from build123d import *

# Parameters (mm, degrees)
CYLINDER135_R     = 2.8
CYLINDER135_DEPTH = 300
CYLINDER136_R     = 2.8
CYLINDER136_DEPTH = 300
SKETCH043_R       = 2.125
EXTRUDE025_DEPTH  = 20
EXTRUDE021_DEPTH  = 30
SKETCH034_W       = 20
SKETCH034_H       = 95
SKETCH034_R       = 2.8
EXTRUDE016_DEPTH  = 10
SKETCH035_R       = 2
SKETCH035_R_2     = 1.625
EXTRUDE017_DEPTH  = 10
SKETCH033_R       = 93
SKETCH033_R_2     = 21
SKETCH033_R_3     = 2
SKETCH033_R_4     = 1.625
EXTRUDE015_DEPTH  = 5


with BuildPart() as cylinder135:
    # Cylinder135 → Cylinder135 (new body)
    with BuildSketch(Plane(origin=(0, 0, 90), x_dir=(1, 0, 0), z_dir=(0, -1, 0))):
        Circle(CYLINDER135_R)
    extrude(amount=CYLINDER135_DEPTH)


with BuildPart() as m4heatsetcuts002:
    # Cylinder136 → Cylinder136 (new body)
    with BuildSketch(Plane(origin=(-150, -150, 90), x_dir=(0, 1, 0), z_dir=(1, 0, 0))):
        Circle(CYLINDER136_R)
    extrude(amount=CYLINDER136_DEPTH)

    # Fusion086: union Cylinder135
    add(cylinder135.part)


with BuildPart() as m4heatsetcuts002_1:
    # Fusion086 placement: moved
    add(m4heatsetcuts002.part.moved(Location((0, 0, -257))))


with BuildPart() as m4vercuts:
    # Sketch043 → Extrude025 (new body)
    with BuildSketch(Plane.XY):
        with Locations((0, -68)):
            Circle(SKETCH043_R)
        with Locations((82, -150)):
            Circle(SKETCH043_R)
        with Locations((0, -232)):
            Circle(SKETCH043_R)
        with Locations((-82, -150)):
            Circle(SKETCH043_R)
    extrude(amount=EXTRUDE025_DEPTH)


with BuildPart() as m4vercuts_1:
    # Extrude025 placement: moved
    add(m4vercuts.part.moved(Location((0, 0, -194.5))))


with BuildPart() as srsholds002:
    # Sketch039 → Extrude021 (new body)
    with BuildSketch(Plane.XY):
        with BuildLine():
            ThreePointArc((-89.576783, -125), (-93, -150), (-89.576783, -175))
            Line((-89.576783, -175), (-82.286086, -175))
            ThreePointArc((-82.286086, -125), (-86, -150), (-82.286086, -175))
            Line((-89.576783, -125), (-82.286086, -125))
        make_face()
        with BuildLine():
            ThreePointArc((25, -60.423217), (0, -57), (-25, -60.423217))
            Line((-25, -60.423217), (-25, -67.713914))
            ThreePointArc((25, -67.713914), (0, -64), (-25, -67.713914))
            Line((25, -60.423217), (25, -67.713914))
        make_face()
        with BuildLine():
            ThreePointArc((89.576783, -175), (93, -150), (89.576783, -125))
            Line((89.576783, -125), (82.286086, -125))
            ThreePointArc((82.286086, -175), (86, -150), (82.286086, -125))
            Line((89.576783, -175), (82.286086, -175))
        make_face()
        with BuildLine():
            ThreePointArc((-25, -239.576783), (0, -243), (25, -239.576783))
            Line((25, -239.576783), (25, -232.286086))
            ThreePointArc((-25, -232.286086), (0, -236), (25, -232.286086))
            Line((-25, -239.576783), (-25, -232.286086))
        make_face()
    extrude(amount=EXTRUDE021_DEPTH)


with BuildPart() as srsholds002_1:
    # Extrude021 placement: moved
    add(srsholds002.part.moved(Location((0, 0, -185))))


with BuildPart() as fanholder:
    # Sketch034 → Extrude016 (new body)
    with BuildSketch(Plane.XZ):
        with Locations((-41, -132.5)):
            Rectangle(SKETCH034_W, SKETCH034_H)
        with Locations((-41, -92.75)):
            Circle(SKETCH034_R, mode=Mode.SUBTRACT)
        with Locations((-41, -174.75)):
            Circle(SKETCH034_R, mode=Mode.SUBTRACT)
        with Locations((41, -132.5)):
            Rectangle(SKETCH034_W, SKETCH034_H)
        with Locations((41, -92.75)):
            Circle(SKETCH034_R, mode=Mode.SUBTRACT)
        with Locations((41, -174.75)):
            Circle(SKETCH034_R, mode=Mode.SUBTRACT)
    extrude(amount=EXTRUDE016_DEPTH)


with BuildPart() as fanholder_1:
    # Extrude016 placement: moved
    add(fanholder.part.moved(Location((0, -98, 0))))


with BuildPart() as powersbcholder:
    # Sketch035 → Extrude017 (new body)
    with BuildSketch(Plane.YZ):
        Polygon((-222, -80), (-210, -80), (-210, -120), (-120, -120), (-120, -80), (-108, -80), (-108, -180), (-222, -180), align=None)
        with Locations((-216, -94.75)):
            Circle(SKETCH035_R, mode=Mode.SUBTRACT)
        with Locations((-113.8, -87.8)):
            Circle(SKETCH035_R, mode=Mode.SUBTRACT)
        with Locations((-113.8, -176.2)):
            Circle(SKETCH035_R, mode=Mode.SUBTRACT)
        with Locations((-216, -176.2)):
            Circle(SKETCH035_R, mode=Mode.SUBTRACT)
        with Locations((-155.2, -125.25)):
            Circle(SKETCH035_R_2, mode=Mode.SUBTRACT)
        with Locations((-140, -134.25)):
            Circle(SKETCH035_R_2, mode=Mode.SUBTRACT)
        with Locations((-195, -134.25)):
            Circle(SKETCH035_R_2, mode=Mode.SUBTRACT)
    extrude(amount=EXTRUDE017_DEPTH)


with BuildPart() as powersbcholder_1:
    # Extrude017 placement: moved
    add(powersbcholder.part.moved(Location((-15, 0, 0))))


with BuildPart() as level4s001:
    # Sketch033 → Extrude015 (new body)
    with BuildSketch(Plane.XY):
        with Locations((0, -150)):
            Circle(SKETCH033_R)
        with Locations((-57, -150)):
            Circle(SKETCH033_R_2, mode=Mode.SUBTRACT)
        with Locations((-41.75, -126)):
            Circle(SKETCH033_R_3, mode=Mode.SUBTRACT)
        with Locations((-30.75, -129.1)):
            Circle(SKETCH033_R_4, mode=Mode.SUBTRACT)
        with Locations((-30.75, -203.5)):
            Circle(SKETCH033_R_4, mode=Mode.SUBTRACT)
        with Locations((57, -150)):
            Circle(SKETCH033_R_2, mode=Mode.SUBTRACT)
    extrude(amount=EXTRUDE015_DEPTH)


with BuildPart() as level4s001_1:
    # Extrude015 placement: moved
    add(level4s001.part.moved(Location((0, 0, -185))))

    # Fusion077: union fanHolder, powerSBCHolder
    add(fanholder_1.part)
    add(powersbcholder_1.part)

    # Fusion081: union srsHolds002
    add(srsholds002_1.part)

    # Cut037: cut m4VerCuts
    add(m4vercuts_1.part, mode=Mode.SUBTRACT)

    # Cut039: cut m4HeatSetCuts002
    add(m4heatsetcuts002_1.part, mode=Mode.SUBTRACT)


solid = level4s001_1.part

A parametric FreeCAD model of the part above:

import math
import FreeCAD as App
import Part
import Sketcher

V = App.Vector

doc = App.newDocument("Part")
params = doc.addObject("Spreadsheet::Sheet", "Params")
for row, (alias, value) in enumerate([
    ("sketch1_diameter", "5.6 mm"),
    ("pad1_length", "300 mm"),
    ("sketch2_diameter", "5.6 mm"),
    ("pad2_length", "300 mm"),
    ("sketch3_diameter", "4.25 mm"),
    ("pad3_length", "20 mm"),
    ("pad4_length", "30 mm"),
    ("sketch5_diameter", "5.6 mm"),
    ("sketch5_width", "20 mm"),
    ("sketch5_height", "95 mm"),
    ("pad5_length", "10 mm"),
    ("sketch6_diameter", "4 mm"),
    ("sketch6_diameter2", "3.25 mm"),
    ("sketch6_width", "12 mm"),
    ("sketch6_width2", "114 mm"),
    ("sketch6_height", "100 mm"),
    ("pad6_length", "10 mm"),
    ("sketch7_diameter", "186 mm"),
    ("sketch7_diameter2", "42 mm"),
    ("sketch7_diameter3", "4 mm"),
    ("sketch7_diameter4", "3.25 mm"),
    ("pad7_length", "5 mm"),
], start=1):
    params.set(f"A{row}", alias)
    params.set(f"B{row}", "=" + value)
    params.setAlias(f"B{row}", alias)

body = doc.addObject("PartDesign::Body", "Body")

# Sketch on XZ plane
sketch1 = body.newObject("Sketcher::SketchObject", "Sketch")
sketch1.AttachmentSupport = (doc.getObject("XZ_Plane"), [""])
sketch1.MapMode = "FlatFace"
sketch1.addGeometry(Part.Circle(V(0, 90, 0), V(0, 0, 1), 2.8), False)
sketch1.addConstraint(Sketcher.Constraint("PointOnObject", 0, 3, -2))
sketch1.addConstraint(Sketcher.Constraint("Diameter", 0, 5.6))
sketch1.addConstraint(Sketcher.Constraint("DistanceY", -1, 1, 0, 3, 90.0))
sketch1.setExpression("Constraints[1]", "Params.sketch1_diameter")
pad1 = body.newObject("PartDesign::Pad", "Pad")
pad1.Profile = sketch1
pad1.setExpression("Length", "Params.pad1_length")
body2 = doc.addObject("PartDesign::Body", "Body001")

# Sketch on YZ plane
sketch2 = body2.newObject("Sketcher::SketchObject", "Sketch001")
sketch2.AttachmentSupport = (doc.getObject("YZ_Plane001"), [""])
sketch2.MapMode = "FlatFace"
sketch2.AttachmentOffset = App.Placement(V(0, 0, -150), App.Rotation())
sketch2.addGeometry(Part.Circle(V(-150, 90, 0), V(0, 0, 1), 2.8), False)
sketch2.addConstraint(Sketcher.Constraint("Diameter", 0, 5.6))
sketch2.addConstraint(Sketcher.Constraint("DistanceX", 0, 3, -1, 1, 150.0))
sketch2.addConstraint(Sketcher.Constraint("DistanceY", -1, 1, 0, 3, 90.0))
sketch2.setExpression("Constraints[0]", "Params.sketch2_diameter")
pad2 = body2.newObject("PartDesign::Pad", "Pad001")
pad2.Profile = sketch2
pad2.setExpression("Length", "Params.pad2_length")
doc.recompute()

boolean = body2.newObject("PartDesign::Boolean", "Boolean")
boolean.Type = "Fuse"
boolean.addObjects([body])
body3 = doc.addObject("PartDesign::Body", "Body002")
doc.recompute()

body2.Placement = App.Placement(V(0, 0, -257), App.Rotation(V(0, 0, 1), 0))
boolean2 = body3.newObject("PartDesign::Boolean", "Boolean001")
boolean2.Type = "Fuse"
boolean2.addObjects([body2])
body4 = doc.addObject("PartDesign::Body", "Body003")
body4.AllowCompound = True

# Sketch on XY plane
sketch3 = body4.newObject("Sketcher::SketchObject", "Sketch002")
sketch3.AttachmentSupport = (doc.getObject("XY_Plane003"), [""])
sketch3.MapMode = "FlatFace"
sketch3.addGeometry(Part.Circle(V(0, -68, 0), V(0, 0, 1), 2.125), False)
sketch3.addGeometry(Part.Circle(V(82, -150, 0), V(0, 0, 1), 2.125), False)
sketch3.addGeometry(Part.Circle(V(0, -232, 0), V(0, 0, 1), 2.125), False)
sketch3.addGeometry(Part.Circle(V(-82, -150, 0), V(0, 0, 1), 2.125), False)
sketch3.addConstraint(Sketcher.Constraint("Equal", 0, 1))
sketch3.addConstraint(Sketcher.Constraint("Equal", 1, 2))
sketch3.addConstraint(Sketcher.Constraint("Equal", 2, 3))
sketch3.addConstraint(Sketcher.Constraint("Symmetric", 1, 3, 3, 3, -2))
sketch3.addConstraint(Sketcher.Constraint("PointOnObject", 0, 3, -2))
sketch3.addConstraint(Sketcher.Constraint("PointOnObject", 2, 3, -2))
sketch3.addConstraint(Sketcher.Constraint("Diameter", 0, 4.25))
sketch3.addConstraint(Sketcher.Constraint("DistanceY", 0, 3, -1, 1, 68.0))
sketch3.addConstraint(Sketcher.Constraint("DistanceX", -1, 1, 1, 3, 82.0))
sketch3.addConstraint(Sketcher.Constraint("DistanceY", 1, 3, -1, 1, 150.0))
sketch3.addConstraint(Sketcher.Constraint("DistanceY", 2, 3, -1, 1, 232.0))
sketch3.setExpression("Constraints[6]", "Params.sketch3_diameter")
pad3 = body4.newObject("PartDesign::Pad", "Pad002")
pad3.Profile = sketch3
pad3.setExpression("Length", "Params.pad3_length")
body5 = doc.addObject("PartDesign::Body", "Body004")
body5.AllowCompound = True
doc.recompute()

body4.Placement = App.Placement(V(0, 0, -194.5), App.Rotation(V(0, 0, 1), 0))
boolean3 = body5.newObject("PartDesign::Boolean", "Boolean002")
boolean3.Type = "Fuse"
boolean3.addObjects([body4])
body6 = doc.addObject("PartDesign::Body", "Body005")
body6.AllowCompound = True

# Sketch on XY plane
sketch4 = body6.newObject("Sketcher::SketchObject", "Sketch003")
sketch4.AttachmentSupport = (doc.getObject("XY_Plane005"), [""])
sketch4.MapMode = "FlatFace"
sketch4.addGeometry(Part.ArcOfCircle(Part.Circle(V(0.000008, -150, 0), V(0, 0, 1), 93.000008), math.radians(164.406106), math.radians(195.593894)), False)
sketch4.addGeometry(Part.LineSegment(V(-89.576783, -175, 0), V(-82.286086, -175, 0)), False)
sketch4.addGeometry(Part.ArcOfCircle(Part.Circle(V(-0.000007, -150, 0), V(0, 0, 1), 85.999993), math.radians(163.100269), math.radians(196.899731)), False)
sketch4.addGeometry(Part.LineSegment(V(-82.286086, -125, 0), V(-89.576783, -125, 0)), False)
sketch4.addGeometry(Part.ArcOfCircle(Part.Circle(V(0, -150.000008, 0), V(0, 0, 1), 93.000008), math.radians(74.406106), math.radians(105.593894)), False)
sketch4.addGeometry(Part.LineSegment(V(-25, -60.423217, 0), V(-25, -67.713914, 0)), False)
sketch4.addGeometry(Part.ArcOfCircle(Part.Circle(V(0, -149.999993, 0), V(0, 0, 1), 85.999993), math.radians(73.100269), math.radians(106.899731)), False)
sketch4.addGeometry(Part.LineSegment(V(25, -67.713914, 0), V(25, -60.423217, 0)), False)
sketch4.addGeometry(Part.ArcOfCircle(Part.Circle(V(-0.000008, -150, 0), V(0, 0, 1), 93.000008), math.radians(-15.593894), math.radians(15.593894)), False)
sketch4.addGeometry(Part.LineSegment(V(89.576783, -125, 0), V(82.286086, -125, 0)), False)
sketch4.addGeometry(Part.ArcOfCircle(Part.Circle(V(0.000007, -150, 0), V(0, 0, 1), 85.999993), math.radians(-16.899731), math.radians(16.899731)), False)
sketch4.addGeometry(Part.LineSegment(V(82.286086, -175, 0), V(89.576783, -175, 0)), False)
sketch4.addGeometry(Part.ArcOfCircle(Part.Circle(V(0, -149.999992, 0), V(0, 0, 1), 93.000008), math.radians(-105.593894), math.radians(-74.406106)), False)
sketch4.addGeometry(Part.LineSegment(V(25, -239.576783, 0), V(25, -232.286086, 0)), False)
sketch4.addGeometry(Part.ArcOfCircle(Part.Circle(V(0, -150.000007, 0), V(0, 0, 1), 85.999993), math.radians(-106.899731), math.radians(-73.100269)), False)
sketch4.addGeometry(Part.LineSegment(V(-25, -232.286086, 0), V(-25, -239.576783, 0)), False)
sketch4.addConstraint(Sketcher.Constraint("Coincident", 0, 2, 1, 1))
sketch4.addConstraint(Sketcher.Constraint("Coincident", 1, 2, 2, 2))
sketch4.addConstraint(Sketcher.Constraint("Coincident", 2, 1, 3, 1))
sketch4.addConstraint(Sketcher.Constraint("Coincident", 3, 2, 0, 1))
sketch4.addConstraint(Sketcher.Constraint("Coincident", 4, 2, 5, 1))
sketch4.addConstraint(Sketcher.Constraint("Coincident", 5, 2, 6, 2))
sketch4.addConstraint(Sketcher.Constraint("Coincident", 6, 1, 7, 1))
sketch4.addConstraint(Sketcher.Constraint("Coincident", 7, 2, 4, 1))
sketch4.addConstraint(Sketcher.Constraint("Coincident", 8, 2, 9, 1))
sketch4.addConstraint(Sketcher.Constraint("Coincident", 9, 2, 10, 2))
sketch4.addConstraint(Sketcher.Constraint("Coincident", 10, 1, 11, 1))
sketch4.addConstraint(Sketcher.Constraint("Coincident", 11, 2, 8, 1))
sketch4.addConstraint(Sketcher.Constraint("Coincident", 12, 2, 13, 1))
sketch4.addConstraint(Sketcher.Constraint("Coincident", 13, 2, 14, 2))
sketch4.addConstraint(Sketcher.Constraint("Coincident", 14, 1, 15, 1))
sketch4.addConstraint(Sketcher.Constraint("Coincident", 15, 2, 12, 1))
sketch4.addConstraint(Sketcher.Constraint("Horizontal", 1))
sketch4.addConstraint(Sketcher.Constraint("Horizontal", 3))
sketch4.addConstraint(Sketcher.Constraint("Vertical", 5))
sketch4.addConstraint(Sketcher.Constraint("Vertical", 7))
sketch4.addConstraint(Sketcher.Constraint("Horizontal", 9))
sketch4.addConstraint(Sketcher.Constraint("Horizontal", 11))
sketch4.addConstraint(Sketcher.Constraint("Vertical", 13))
sketch4.addConstraint(Sketcher.Constraint("Vertical", 15))
sketch4.addConstraint(Sketcher.Constraint("Coincident", 6, 3, 2, 3))
sketch4.addConstraint(Sketcher.Constraint("Coincident", 8, 3, 2, 3))
sketch4.addConstraint(Sketcher.Constraint("Coincident", 10, 3, 0, 3))
sketch4.addConstraint(Sketcher.Constraint("Coincident", 12, 3, 6, 3))
sketch4.addConstraint(Sketcher.Constraint("Coincident", 14, 3, 2, 3))
sketch4.addConstraint(Sketcher.Constraint("PointOnObject", 4, 3, -2))
sketch4.addConstraint(Sketcher.Constraint("PointOnObject", 6, 3, -2))
sketch4.addConstraint(Sketcher.Constraint("DistanceY", 0, 3, -1, 1, 150.0))
sketch4.addConstraint(Sketcher.Constraint("DistanceY", 2, 3, -1, 1, 150.0))
sketch4.addConstraint(Sketcher.Constraint("DistanceY", 0, 2, -1, 1, 175.0))
sketch4.addConstraint(Sketcher.Constraint("DistanceY", 2, 1, -1, 1, 125.0))
sketch4.addConstraint(Sketcher.Constraint("DistanceX", 4, 2, -1, 1, 25.0))
sketch4.addConstraint(Sketcher.Constraint("DistanceX", -1, 1, 6, 1, 25.0))
sketch4.addConstraint(Sketcher.Constraint("DistanceY", 8, 2, -1, 1, 125.0))
sketch4.addConstraint(Sketcher.Constraint("DistanceY", 10, 1, -1, 1, 175.0))
sketch4.addConstraint(Sketcher.Constraint("DistanceX", -1, 1, 12, 2, 25.0))
sketch4.addConstraint(Sketcher.Constraint("DistanceX", 14, 1, -1, 1, 25.0))
sketch4.addConstraint(Sketcher.Constraint("Radius", 0, 93.000008))
sketch4.addConstraint(Sketcher.Constraint("Radius", 2, 85.999993))
sketch4.addConstraint(Sketcher.Constraint("Radius", 4, 93.000008))
sketch4.addConstraint(Sketcher.Constraint("Radius", 6, 85.999993))
sketch4.addConstraint(Sketcher.Constraint("Radius", 8, 93.000008))
sketch4.addConstraint(Sketcher.Constraint("Radius", 10, 85.999993))
sketch4.addConstraint(Sketcher.Constraint("Radius", 12, 93.000008))
sketch4.addConstraint(Sketcher.Constraint("Radius", 14, 85.999993))
sketch4.addConstraint(Sketcher.Constraint("DistanceX", 1, 1, 1, 2, 7.290697))
sketch4.addConstraint(Sketcher.Constraint("DistanceY", 5, 2, 5, 1, 7.290697))
pad4 = body6.newObject("PartDesign::Pad", "Pad003")
pad4.Profile = sketch4
pad4.setExpression("Length", "Params.pad4_length")
body7 = doc.addObject("PartDesign::Body", "Body006")
body7.AllowCompound = True
doc.recompute()

body6.Placement = App.Placement(V(0, 0, -185), App.Rotation(V(0, 0, 1), 0))
boolean4 = body7.newObject("PartDesign::Boolean", "Boolean003")
boolean4.Type = "Fuse"
boolean4.addObjects([body6])
body8 = doc.addObject("PartDesign::Body", "Body007")
body8.AllowCompound = True

# Sketch on XZ plane
sketch5 = body8.newObject("Sketcher::SketchObject", "Sketch004")
sketch5.AttachmentSupport = (doc.getObject("XZ_Plane007"), [""])
sketch5.MapMode = "FlatFace"
sketch5.addGeometry(Part.LineSegment(V(-51, -85, 0), V(-51, -180, 0)), False)
sketch5.addGeometry(Part.LineSegment(V(-51, -180, 0), V(-31, -180, 0)), False)
sketch5.addGeometry(Part.LineSegment(V(-31, -180, 0), V(-31, -85, 0)), False)
sketch5.addGeometry(Part.LineSegment(V(-31, -85, 0), V(-51, -85, 0)), False)
sketch5.addGeometry(Part.Circle(V(-41, -174.75, 0), V(0, 0, 1), 2.8), False)
sketch5.addGeometry(Part.Circle(V(-41, -92.75, 0), V(0, 0, 1), 2.8), False)
sketch5.addGeometry(Part.LineSegment(V(31, -85, 0), V(31, -180, 0)), False)
sketch5.addGeometry(Part.LineSegment(V(31, -180, 0), V(51, -180, 0)), False)
sketch5.addGeometry(Part.LineSegment(V(51, -180, 0), V(51, -85, 0)), False)
sketch5.addGeometry(Part.LineSegment(V(51, -85, 0), V(31, -85, 0)), False)
sketch5.addGeometry(Part.Circle(V(41, -174.75, 0), V(0, 0, 1), 2.8), False)
sketch5.addGeometry(Part.Circle(V(41, -92.75, 0), V(0, 0, 1), 2.8), False)
sketch5.addConstraint(Sketcher.Constraint("Coincident", 0, 2, 1, 1))
sketch5.addConstraint(Sketcher.Constraint("Coincident", 1, 2, 2, 1))
sketch5.addConstraint(Sketcher.Constraint("Coincident", 2, 2, 3, 1))
sketch5.addConstraint(Sketcher.Constraint("Coincident", 3, 2, 0, 1))
sketch5.addConstraint(Sketcher.Constraint("Coincident", 6, 2, 7, 1))
sketch5.addConstraint(Sketcher.Constraint("Coincident", 7, 2, 8, 1))
sketch5.addConstraint(Sketcher.Constraint("Coincident", 8, 2, 9, 1))
sketch5.addConstraint(Sketcher.Constraint("Coincident", 9, 2, 6, 1))
sketch5.addConstraint(Sketcher.Constraint("Vertical", 0))
sketch5.addConstraint(Sketcher.Constraint("Horizontal", 1))
sketch5.addConstraint(Sketcher.Constraint("Vertical", 2))
sketch5.addConstraint(Sketcher.Constraint("Horizontal", 3))
sketch5.addConstraint(Sketcher.Constraint("Vertical", 6))
sketch5.addConstraint(Sketcher.Constraint("Horizontal", 7))
sketch5.addConstraint(Sketcher.Constraint("Vertical", 8))
sketch5.addConstraint(Sketcher.Constraint("Horizontal", 9))
sketch5.addConstraint(Sketcher.Constraint("Equal", 4, 5))
sketch5.addConstraint(Sketcher.Constraint("Equal", 5, 10))
sketch5.addConstraint(Sketcher.Constraint("Equal", 10, 11))
sketch5.addConstraint(Sketcher.Constraint("Symmetric", 4, 3, 10, 3, -2))
sketch5.addConstraint(Sketcher.Constraint("Symmetric", 5, 3, 11, 3, -2))
sketch5.addConstraint(Sketcher.Constraint("Symmetric", 1, 2, 6, 2, -2))
sketch5.addConstraint(Sketcher.Constraint("Symmetric", 3, 2, 8, 2, -2))
sketch5.addConstraint(Sketcher.Constraint("Vertical", 4, 3, 5, 3))
sketch5.addConstraint(Sketcher.Constraint("Diameter", 4, 5.6))
sketch5.addConstraint(Sketcher.Constraint("DistanceX", 1, 1, 1, 2, 20.0))
sketch5.addConstraint(Sketcher.Constraint("DistanceY", 0, 2, 0, 1, 95.0))
sketch5.addConstraint(Sketcher.Constraint("DistanceX", 4, 3, -1, 1, 41.0))
sketch5.addConstraint(Sketcher.Constraint("DistanceX", 0, 2, -1, 1, 51.0))
sketch5.addConstraint(Sketcher.Constraint("DistanceY", 0, 2, -1, 1, 180.0))
sketch5.addConstraint(Sketcher.Constraint("DistanceY", 4, 3, 5, 3, 82.0))
sketch5.addConstraint(Sketcher.Constraint("DistanceY", 4, 3, -1, 1, 174.75))
sketch5.setExpression("Constraints[24]", "Params.sketch5_diameter")
sketch5.setExpression("Constraints[25]", "Params.sketch5_width")
sketch5.setExpression("Constraints[26]", "Params.sketch5_height")
pad5 = body8.newObject("PartDesign::Pad", "Pad004")
pad5.Profile = sketch5
pad5.setExpression("Length", "Params.pad5_length")
body9 = doc.addObject("PartDesign::Body", "Body008")
body9.AllowCompound = True
doc.recompute()

body8.Placement = App.Placement(V(0, -98, 0), App.Rotation(V(0, 0, 1), 0))
boolean5 = body9.newObject("PartDesign::Boolean", "Boolean004")
boolean5.Type = "Fuse"
boolean5.addObjects([body8])
body10 = doc.addObject("PartDesign::Body", "Body009")

# Sketch on YZ plane
sketch6 = body10.newObject("Sketcher::SketchObject", "Sketch005")
sketch6.AttachmentSupport = (doc.getObject("YZ_Plane009"), [""])
sketch6.MapMode = "FlatFace"
sketch6.addGeometry(Part.LineSegment(V(-210, -80, 0), V(-222, -80, 0)), False)
sketch6.addGeometry(Part.LineSegment(V(-222, -80, 0), V(-222, -180, 0)), False)
sketch6.addGeometry(Part.LineSegment(V(-222, -180, 0), V(-108, -180, 0)), False)
sketch6.addGeometry(Part.LineSegment(V(-108, -180, 0), V(-108, -80, 0)), False)
sketch6.addGeometry(Part.LineSegment(V(-108, -80, 0), V(-120, -80, 0)), False)
sketch6.addGeometry(Part.LineSegment(V(-120, -80, 0), V(-120, -120, 0)), False)
sketch6.addGeometry(Part.LineSegment(V(-120, -120, 0), V(-210, -120, 0)), False)
sketch6.addGeometry(Part.LineSegment(V(-210, -120, 0), V(-210, -80, 0)), False)
sketch6.addGeometry(Part.Circle(V(-113.8, -176.2, 0), V(0, 0, 1), 2), False)
sketch6.addGeometry(Part.Circle(V(-140, -134.25, 0), V(0, 0, 1), 1.625), False)
sketch6.addGeometry(Part.Circle(V(-216, -176.2, 0), V(0, 0, 1), 2), False)
sketch6.addGeometry(Part.Circle(V(-195, -134.25, 0), V(0, 0, 1), 1.625), False)
sketch6.addGeometry(Part.Circle(V(-155.2, -125.25, 0), V(0, 0, 1), 1.625), False)
sketch6.addGeometry(Part.Circle(V(-113.8, -87.8, 0), V(0, 0, 1), 2), False)
sketch6.addGeometry(Part.Circle(V(-216, -94.75, 0), V(0, 0, 1), 2), False)
sketch6.addConstraint(Sketcher.Constraint("Coincident", 0, 2, 1, 1))
sketch6.addConstraint(Sketcher.Constraint("Coincident", 1, 2, 2, 1))
sketch6.addConstraint(Sketcher.Constraint("Coincident", 2, 2, 3, 1))
sketch6.addConstraint(Sketcher.Constraint("Coincident", 3, 2, 4, 1))
sketch6.addConstraint(Sketcher.Constraint("Coincident", 4, 2, 5, 1))
sketch6.addConstraint(Sketcher.Constraint("Coincident", 5, 2, 6, 1))
sketch6.addConstraint(Sketcher.Constraint("Coincident", 6, 2, 7, 1))
sketch6.addConstraint(Sketcher.Constraint("Coincident", 7, 2, 0, 1))
sketch6.addConstraint(Sketcher.Constraint("Horizontal", 0))
sketch6.addConstraint(Sketcher.Constraint("Vertical", 1))
sketch6.addConstraint(Sketcher.Constraint("Horizontal", 2))
sketch6.addConstraint(Sketcher.Constraint("Vertical", 3))
sketch6.addConstraint(Sketcher.Constraint("Horizontal", 4))
sketch6.addConstraint(Sketcher.Constraint("Vertical", 5))
sketch6.addConstraint(Sketcher.Constraint("Horizontal", 6))
sketch6.addConstraint(Sketcher.Constraint("Vertical", 7))
sketch6.addConstraint(Sketcher.Constraint("Equal", 8, 10))
sketch6.addConstraint(Sketcher.Constraint("Equal", 9, 11))
sketch6.addConstraint(Sketcher.Constraint("Equal", 11, 12))
sketch6.addConstraint(Sketcher.Constraint("Equal", 10, 13))
sketch6.addConstraint(Sketcher.Constraint("Equal", 13, 14))
sketch6.addConstraint(Sketcher.Constraint("Horizontal", 8, 3, 10, 3))
sketch6.addConstraint(Sketcher.Constraint("Horizontal", 9, 3, 11, 3))
sketch6.addConstraint(Sketcher.Constraint("Horizontal", 0, 2, 3, 2))
sketch6.addConstraint(Sketcher.Constraint("Vertical", 8, 3, 13, 3))
sketch6.addConstraint(Sketcher.Constraint("Vertical", 10, 3, 14, 3))
sketch6.addConstraint(Sketcher.Constraint("Equal", 0, 4))
sketch6.addConstraint(Sketcher.Constraint("Diameter", 8, 4.0))
sketch6.addConstraint(Sketcher.Constraint("Diameter", 9, 3.25))
sketch6.addConstraint(Sketcher.Constraint("DistanceX", 0, 2, 0, 1, 12.0))
sketch6.addConstraint(Sketcher.Constraint("DistanceX", 2, 1, 2, 2, 114.0))
sketch6.addConstraint(Sketcher.Constraint("DistanceY", 1, 2, 1, 1, 100.0))
sketch6.addConstraint(Sketcher.Constraint("DistanceY", 5, 2, 5, 1, 40.0))
sketch6.addConstraint(Sketcher.Constraint("DistanceX", 9, 3, -1, 1, 140.0))
sketch6.addConstraint(Sketcher.Constraint("DistanceX", 10, 3, -1, 1, 216.0))
sketch6.addConstraint(Sketcher.Constraint("DistanceX", 11, 3, -1, 1, 195.0))
sketch6.addConstraint(Sketcher.Constraint("DistanceX", 0, 2, -1, 1, 222.0))
sketch6.addConstraint(Sketcher.Constraint("DistanceY", 0, 2, -1, 1, 80.0))
sketch6.addConstraint(Sketcher.Constraint("DistanceY", 9, 3, 12, 3, 9.0))
sketch6.addConstraint(Sketcher.Constraint("DistanceX", 8, 3, -1, 1, 113.8))
sketch6.addConstraint(Sketcher.Constraint("DistanceY", 8, 3, -1, 1, 176.2))
sketch6.addConstraint(Sketcher.Constraint("DistanceX", 12, 3, -1, 1, 155.2))
sketch6.addConstraint(Sketcher.Constraint("DistanceY", 13, 3, -1, 1, 87.8))
sketch6.addConstraint(Sketcher.Constraint("DistanceY", 11, 3, 14, 3, 39.5))
sketch6.addConstraint(Sketcher.Constraint("DistanceY", 9, 3, -1, 1, 134.25))
sketch6.setExpression("Constraints[27]", "Params.sketch6_diameter")
sketch6.setExpression("Constraints[28]", "Params.sketch6_diameter2")
sketch6.setExpression("Constraints[29]", "Params.sketch6_width")
sketch6.setExpression("Constraints[30]", "Params.sketch6_width2")
sketch6.setExpression("Constraints[31]", "Params.sketch6_height")
pad6 = body10.newObject("PartDesign::Pad", "Pad005")
pad6.Profile = sketch6
pad6.setExpression("Length", "Params.pad6_length")
body11 = doc.addObject("PartDesign::Body", "Body010")
doc.recompute()

body10.Placement = App.Placement(V(-15, 0, 0), App.Rotation(V(0, 0, 1), 0))
boolean6 = body11.newObject("PartDesign::Boolean", "Boolean005")
boolean6.Type = "Fuse"
boolean6.addObjects([body10])
body12 = doc.addObject("PartDesign::Body", "Body011")

# Sketch on XY plane
sketch7 = body12.newObject("Sketcher::SketchObject", "Sketch006")
sketch7.AttachmentSupport = (doc.getObject("XY_Plane011"), [""])
sketch7.MapMode = "FlatFace"
sketch7.addGeometry(Part.Circle(V(0, -150, 0), V(0, 0, 1), 93), False)
sketch7.addGeometry(Part.Circle(V(-30.75, -203.5, 0), V(0, 0, 1), 1.625), False)
sketch7.addGeometry(Part.Circle(V(-57, -150, 0), V(0, 0, 1), 21), False)
sketch7.addGeometry(Part.Circle(V(-41.75, -126, 0), V(0, 0, 1), 2), False)
sketch7.addGeometry(Part.Circle(V(-30.75, -129.1, 0), V(0, 0, 1), 1.625), False)
sketch7.addGeometry(Part.Circle(V(57, -150, 0), V(0, 0, 1), 21), False)
sketch7.addConstraint(Sketcher.Constraint("Equal", 1, 4))
sketch7.addConstraint(Sketcher.Constraint("Equal", 2, 5))
sketch7.addConstraint(Sketcher.Constraint("Symmetric", 2, 3, 5, 3, -2))
sketch7.addConstraint(Sketcher.Constraint("PointOnObject", 0, 3, -2))
sketch7.addConstraint(Sketcher.Constraint("Horizontal", 0, 3, 2, 3))
sketch7.addConstraint(Sketcher.Constraint("Vertical", 1, 3, 4, 3))
sketch7.addConstraint(Sketcher.Constraint("Diameter", 0, 186.0))
sketch7.addConstraint(Sketcher.Constraint("Diameter", 2, 42.0))
sketch7.addConstraint(Sketcher.Constraint("Diameter", 3, 4.0))
sketch7.addConstraint(Sketcher.Constraint("Diameter", 1, 3.25))
sketch7.addConstraint(Sketcher.Constraint("DistanceY", 0, 3, -1, 1, 150.0))
sketch7.addConstraint(Sketcher.Constraint("DistanceX", 2, 3, -1, 1, 57.0))
sketch7.addConstraint(Sketcher.Constraint("DistanceY", 3, 3, -1, 1, 126.0))
sketch7.addConstraint(Sketcher.Constraint("DistanceX", 3, 3, 1, 3, 11.0))
sketch7.addConstraint(Sketcher.Constraint("DistanceY", 1, 3, -1, 1, 203.5))
sketch7.addConstraint(Sketcher.Constraint("DistanceY", 4, 3, -1, 1, 129.1))
sketch7.addConstraint(Sketcher.Constraint("DistanceX", 1, 3, -1, 1, 30.75))
sketch7.setExpression("Constraints[6]", "Params.sketch7_diameter")
sketch7.setExpression("Constraints[7]", "Params.sketch7_diameter2")
sketch7.setExpression("Constraints[8]", "Params.sketch7_diameter3")
sketch7.setExpression("Constraints[9]", "Params.sketch7_diameter4")
pad7 = body12.newObject("PartDesign::Pad", "Pad006")
pad7.Profile = sketch7
pad7.setExpression("Length", "Params.pad7_length")
body13 = doc.addObject("PartDesign::Body", "Body012")
doc.recompute()

body12.Placement = App.Placement(V(0, 0, -185), App.Rotation(V(0, 0, 1), 0))
boolean7 = body13.newObject("PartDesign::Boolean", "Boolean006")
boolean7.Type = "Fuse"
boolean7.addObjects([body12])
doc.recompute()

boolean8 = body13.newObject("PartDesign::Boolean", "Boolean007")
boolean8.Type = "Fuse"
boolean8.addObjects([body9])
doc.recompute()

boolean9 = body13.newObject("PartDesign::Boolean", "Boolean008")
boolean9.Type = "Fuse"
boolean9.addObjects([body11])
doc.recompute()

boolean10 = body13.newObject("PartDesign::Boolean", "Boolean009")
boolean10.Type = "Fuse"
boolean10.addObjects([body7])
doc.recompute()

boolean11 = body13.newObject("PartDesign::Boolean", "Boolean010")
boolean11.Type = "Cut"
boolean11.addObjects([body5])
doc.recompute()

boolean12 = body13.newObject("PartDesign::Boolean", "Boolean011")
boolean12.Type = "Cut"
boolean12.addObjects([body3])

doc.recompute()
